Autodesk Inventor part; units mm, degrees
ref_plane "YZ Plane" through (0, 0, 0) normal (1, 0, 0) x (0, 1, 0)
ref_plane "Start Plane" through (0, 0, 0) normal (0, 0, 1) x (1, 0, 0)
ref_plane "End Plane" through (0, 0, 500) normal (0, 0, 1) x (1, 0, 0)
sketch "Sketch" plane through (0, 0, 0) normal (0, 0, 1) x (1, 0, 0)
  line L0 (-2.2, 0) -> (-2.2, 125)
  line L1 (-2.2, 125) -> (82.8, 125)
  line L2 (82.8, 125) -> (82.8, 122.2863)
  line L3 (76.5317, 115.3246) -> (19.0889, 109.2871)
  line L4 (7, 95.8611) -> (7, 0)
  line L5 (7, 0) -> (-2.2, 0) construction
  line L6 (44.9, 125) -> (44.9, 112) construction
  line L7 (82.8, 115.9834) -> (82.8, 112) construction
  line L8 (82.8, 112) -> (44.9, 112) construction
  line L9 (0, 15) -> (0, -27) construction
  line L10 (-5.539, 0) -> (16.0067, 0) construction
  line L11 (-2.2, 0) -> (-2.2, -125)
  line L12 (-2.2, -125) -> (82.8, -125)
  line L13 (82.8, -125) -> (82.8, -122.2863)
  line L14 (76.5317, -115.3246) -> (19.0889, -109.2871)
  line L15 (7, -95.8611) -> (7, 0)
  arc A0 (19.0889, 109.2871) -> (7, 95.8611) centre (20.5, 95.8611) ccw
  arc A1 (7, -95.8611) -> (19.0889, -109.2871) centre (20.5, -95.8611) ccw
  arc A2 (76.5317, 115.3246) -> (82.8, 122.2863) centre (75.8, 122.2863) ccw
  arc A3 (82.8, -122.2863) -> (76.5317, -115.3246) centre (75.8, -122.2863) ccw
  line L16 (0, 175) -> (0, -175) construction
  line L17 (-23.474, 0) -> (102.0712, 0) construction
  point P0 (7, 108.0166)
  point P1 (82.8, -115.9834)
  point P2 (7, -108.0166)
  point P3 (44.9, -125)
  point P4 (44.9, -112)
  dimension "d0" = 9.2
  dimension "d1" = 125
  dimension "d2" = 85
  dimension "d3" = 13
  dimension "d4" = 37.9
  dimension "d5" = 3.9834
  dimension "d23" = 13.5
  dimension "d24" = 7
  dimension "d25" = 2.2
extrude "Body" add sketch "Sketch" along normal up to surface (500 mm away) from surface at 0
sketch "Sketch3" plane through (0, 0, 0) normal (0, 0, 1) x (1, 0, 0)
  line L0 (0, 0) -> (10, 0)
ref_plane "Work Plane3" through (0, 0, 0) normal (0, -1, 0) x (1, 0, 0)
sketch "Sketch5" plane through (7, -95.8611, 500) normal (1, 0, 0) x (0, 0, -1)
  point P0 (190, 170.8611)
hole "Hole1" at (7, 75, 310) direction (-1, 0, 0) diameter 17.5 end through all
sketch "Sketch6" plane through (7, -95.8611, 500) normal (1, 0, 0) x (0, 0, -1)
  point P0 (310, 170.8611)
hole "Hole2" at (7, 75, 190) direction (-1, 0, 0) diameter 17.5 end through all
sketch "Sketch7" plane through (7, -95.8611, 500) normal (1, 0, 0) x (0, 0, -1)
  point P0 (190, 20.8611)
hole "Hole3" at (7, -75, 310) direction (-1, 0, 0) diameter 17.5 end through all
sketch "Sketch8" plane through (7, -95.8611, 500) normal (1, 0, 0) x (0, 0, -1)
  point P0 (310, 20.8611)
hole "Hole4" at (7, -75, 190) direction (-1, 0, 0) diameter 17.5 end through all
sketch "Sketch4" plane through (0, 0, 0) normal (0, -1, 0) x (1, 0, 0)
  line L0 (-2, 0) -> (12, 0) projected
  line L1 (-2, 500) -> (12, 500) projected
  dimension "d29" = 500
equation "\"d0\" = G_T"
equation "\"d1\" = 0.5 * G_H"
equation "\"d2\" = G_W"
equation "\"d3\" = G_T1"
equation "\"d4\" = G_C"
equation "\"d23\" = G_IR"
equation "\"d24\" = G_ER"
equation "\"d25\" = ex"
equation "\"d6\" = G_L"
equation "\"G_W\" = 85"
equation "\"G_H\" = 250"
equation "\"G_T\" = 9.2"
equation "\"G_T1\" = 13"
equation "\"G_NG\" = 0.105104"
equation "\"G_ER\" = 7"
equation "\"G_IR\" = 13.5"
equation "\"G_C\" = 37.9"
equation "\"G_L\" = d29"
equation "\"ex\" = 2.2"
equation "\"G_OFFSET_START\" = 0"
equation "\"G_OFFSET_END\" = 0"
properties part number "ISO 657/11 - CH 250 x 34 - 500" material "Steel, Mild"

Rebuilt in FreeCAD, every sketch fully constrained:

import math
import FreeCAD as App
import Part
import Sketcher
Q = App.Units.Quantity

doc = App.newDocument("Part")
body = doc.addObject("PartDesign::Body", "Body")

sketch1 = body.newObject("Sketcher::SketchObject", "Sketch")
sketch1.AttachmentSupport = (doc.getObject("XY_Plane"), [""])
sketch1.MapMode = "FlatFace"
sketch1.addGeometry([
    Part.LineSegment(App.Vector(-2.2, 125, 0), App.Vector(-2.2, -125, 0)),
    Part.LineSegment(App.Vector(-2.2, -125, 0), App.Vector(82.8, -125, 0)),
    Part.LineSegment(App.Vector(82.8, -125, 0), App.Vector(82.8, -122.2863, 0)),
    Part.ArcOfCircle(Part.Circle(App.Vector(75.8, -122.2863, 0), App.Vector(0, 0, 1), 7), math.radians(0), math.radians(84.000034)),
    Part.LineSegment(App.Vector(76.5317, -115.3246, 0), App.Vector(19.0889, -109.2871, 0)),
    Part.ArcOfCircle(Part.Circle(App.Vector(20.5, -95.8611, 0), App.Vector(0, 0, 1), 13.5), math.radians(180), math.radians(264.000124)),
    Part.LineSegment(App.Vector(7, -95.8611, 0), App.Vector(7, 95.8611, 0)),
    Part.ArcOfCircle(Part.Circle(App.Vector(20.5, 95.8611, 0), App.Vector(0, 0, 1), 13.499951), math.radians(95.999876), math.radians(180)),
    Part.LineSegment(App.Vector(19.0889, 109.2871, 0), App.Vector(76.5317, 115.3246, 0)),
    Part.ArcOfCircle(Part.Circle(App.Vector(75.8, 122.2863, 0), App.Vector(0, 0, 1), 7.000047), math.radians(-84.000034), math.radians(0)),
    Part.LineSegment(App.Vector(82.8, 122.2863, 0), App.Vector(82.8, 125, 0)),
    Part.LineSegment(App.Vector(82.8, 125, 0), App.Vector(-2.2, 125, 0)),
], False)
sketch1.addConstraint([
    Sketcher.Constraint("Coincident", 0, 2, 1, 1),
    Sketcher.Constraint("Coincident", 1, 2, 2, 1),
    Sketcher.Constraint("Tangent", 2, 2, 3, 1),
    Sketcher.Constraint("Tangent", 3, 2, 4, 1),
    Sketcher.Constraint("Tangent", 4, 2, 5, 2),
    Sketcher.Constraint("Tangent", 5, 1, 6, 1),
    Sketcher.Constraint("Tangent", 6, 2, 7, 2),
    Sketcher.Constraint("Tangent", 7, 1, 8, 1),
    Sketcher.Constraint("Tangent", 8, 2, 9, 1),
    Sketcher.Constraint("Tangent", 9, 2, 10, 1),
    Sketcher.Constraint("Coincident", 10, 2, 11, 1),
    Sketcher.Constraint("Coincident", 11, 2, 0, 1),
    Sketcher.Constraint("Vertical", 0),
    Sketcher.Constraint("Horizontal", 1),
    Sketcher.Constraint("Vertical", 2),
    Sketcher.Constraint("Vertical", 6),
    Sketcher.Constraint("Vertical", 10),
    Sketcher.Constraint("Horizontal", 11),
    Sketcher.Constraint("Equal", 5, 7),
    Sketcher.Constraint("Equal", 3, 9),
    Sketcher.Constraint("Symmetric", 3, 3, 9, 3, -1),
    Sketcher.Constraint("Vertical", 4, 2, 7, 1),
    Sketcher.Constraint("Equal", 2, 10),
    Sketcher.Constraint("Radius", 3, Q("7 mm")),
    Sketcher.Constraint("Radius", 5, Q("13.5 mm")),
    Sketcher.Constraint("DistanceX", 1, 1, 1, 2, Q("85 mm")),
    Sketcher.Constraint("DistanceY", 0, 2, -1, 1, Q("125 mm")),
    Sketcher.Constraint("DistanceX", -1, 1, 5, 1, Q("7 mm")),
    Sketcher.Constraint("DistanceX", 0, 2, -1, 1, Q("2.2 mm")),
    Sketcher.Constraint("Angle", 4, Q("174 deg")),
    Sketcher.Constraint("DistanceY", 2, 1, 2, 2, Q("2.7137 mm")),
])
pad1 = body.newObject("PartDesign::Pad", "Pad")
pad1.Profile = sketch1
pad1.Length = 500

sketch2 = body.newObject("Sketcher::SketchObject", "Sketch001")
sketch2.AttachmentSupport = (doc.getObject("YZ_Plane"), [""])
sketch2.MapMode = "FlatFace"
sketch2.AttachmentOffset = App.Placement(App.Vector(0, 0, 7), App.Rotation())
sketch2.addGeometry(Part.Circle(App.Vector(75, 310, 0), App.Vector(0, 0, 1), 8.75), False)
sketch2.addConstraint([
    Sketcher.Constraint("Diameter", 0, Q("17.5 mm")),
    Sketcher.Constraint("DistanceX", -1, 1, 0, 3, Q("75 mm")),
    Sketcher.Constraint("DistanceY", -1, 1, 0, 3, Q("310 mm")),
])
doc.recompute()
hole = body.newObject("PartDesign::Hole", "Hole")
hole.Profile = sketch2
hole.ThreadType = "None"
hole.Diameter = 17.5
hole.DepthType = "ThroughAll"

sketch3 = body.newObject("Sketcher::SketchObject", "Sketch002")
sketch3.AttachmentSupport = (doc.getObject("YZ_Plane"), [""])
sketch3.MapMode = "FlatFace"
sketch3.AttachmentOffset = App.Placement(App.Vector(0, 0, 7), App.Rotation())
sketch3.addGeometry(Part.Circle(App.Vector(75, 190, 0), App.Vector(0, 0, 1), 8.75), False)
sketch3.addConstraint([
    Sketcher.Constraint("Diameter", 0, Q("17.5 mm")),
    Sketcher.Constraint("DistanceX", -1, 1, 0, 3, Q("75 mm")),
    Sketcher.Constraint("DistanceY", -1, 1, 0, 3, Q("190 mm")),
])
doc.recompute()
hole2 = body.newObject("PartDesign::Hole", "Hole001")
hole2.Profile = sketch3
hole2.ThreadType = "None"
hole2.Diameter = 17.5
hole2.DepthType = "ThroughAll"

sketch4 = body.newObject("Sketcher::SketchObject", "Sketch003")
sketch4.AttachmentSupport = (doc.getObject("YZ_Plane"), [""])
sketch4.MapMode = "FlatFace"
sketch4.AttachmentOffset = App.Placement(App.Vector(0, 0, 7), App.Rotation())
sketch4.addGeometry(Part.Circle(App.Vector(-75, 310, 0), App.Vector(0, 0, 1), 8.75), False)
sketch4.addConstraint([
    Sketcher.Constraint("Diameter", 0, Q("17.5 mm")),
    Sketcher.Constraint("DistanceX", 0, 3, -1, 1, Q("75 mm")),
    Sketcher.Constraint("DistanceY", -1, 1, 0, 3, Q("310 mm")),
])
doc.recompute()
hole3 = body.newObject("PartDesign::Hole", "Hole002")
hole3.Profile = sketch4
hole3.ThreadType = "None"
hole3.Diameter = 17.5
hole3.DepthType = "ThroughAll"

sketch5 = body.newObject("Sketcher::SketchObject", "Sketch004")
sketch5.AttachmentSupport = (doc.getObject("YZ_Plane"), [""])
sketch5.MapMode = "FlatFace"
sketch5.AttachmentOffset = App.Placement(App.Vector(0, 0, 7), App.Rotation())
sketch5.addGeometry(Part.Circle(App.Vector(-75, 190, 0), App.Vector(0, 0, 1), 8.75), False)
sketch5.addConstraint([
    Sketcher.Constraint("Diameter", 0, Q("17.5 mm")),
    Sketcher.Constraint("DistanceX", 0, 3, -1, 1, Q("75 mm")),
    Sketcher.Constraint("DistanceY", -1, 1, 0, 3, Q("190 mm")),
])
doc.recompute()
hole4 = body.newObject("PartDesign::Hole", "Hole003")
hole4.Profile = sketch5
hole4.ThreadType = "None"
hole4.Diameter = 17.5
hole4.DepthType = "ThroughAll"

doc.recompute()
